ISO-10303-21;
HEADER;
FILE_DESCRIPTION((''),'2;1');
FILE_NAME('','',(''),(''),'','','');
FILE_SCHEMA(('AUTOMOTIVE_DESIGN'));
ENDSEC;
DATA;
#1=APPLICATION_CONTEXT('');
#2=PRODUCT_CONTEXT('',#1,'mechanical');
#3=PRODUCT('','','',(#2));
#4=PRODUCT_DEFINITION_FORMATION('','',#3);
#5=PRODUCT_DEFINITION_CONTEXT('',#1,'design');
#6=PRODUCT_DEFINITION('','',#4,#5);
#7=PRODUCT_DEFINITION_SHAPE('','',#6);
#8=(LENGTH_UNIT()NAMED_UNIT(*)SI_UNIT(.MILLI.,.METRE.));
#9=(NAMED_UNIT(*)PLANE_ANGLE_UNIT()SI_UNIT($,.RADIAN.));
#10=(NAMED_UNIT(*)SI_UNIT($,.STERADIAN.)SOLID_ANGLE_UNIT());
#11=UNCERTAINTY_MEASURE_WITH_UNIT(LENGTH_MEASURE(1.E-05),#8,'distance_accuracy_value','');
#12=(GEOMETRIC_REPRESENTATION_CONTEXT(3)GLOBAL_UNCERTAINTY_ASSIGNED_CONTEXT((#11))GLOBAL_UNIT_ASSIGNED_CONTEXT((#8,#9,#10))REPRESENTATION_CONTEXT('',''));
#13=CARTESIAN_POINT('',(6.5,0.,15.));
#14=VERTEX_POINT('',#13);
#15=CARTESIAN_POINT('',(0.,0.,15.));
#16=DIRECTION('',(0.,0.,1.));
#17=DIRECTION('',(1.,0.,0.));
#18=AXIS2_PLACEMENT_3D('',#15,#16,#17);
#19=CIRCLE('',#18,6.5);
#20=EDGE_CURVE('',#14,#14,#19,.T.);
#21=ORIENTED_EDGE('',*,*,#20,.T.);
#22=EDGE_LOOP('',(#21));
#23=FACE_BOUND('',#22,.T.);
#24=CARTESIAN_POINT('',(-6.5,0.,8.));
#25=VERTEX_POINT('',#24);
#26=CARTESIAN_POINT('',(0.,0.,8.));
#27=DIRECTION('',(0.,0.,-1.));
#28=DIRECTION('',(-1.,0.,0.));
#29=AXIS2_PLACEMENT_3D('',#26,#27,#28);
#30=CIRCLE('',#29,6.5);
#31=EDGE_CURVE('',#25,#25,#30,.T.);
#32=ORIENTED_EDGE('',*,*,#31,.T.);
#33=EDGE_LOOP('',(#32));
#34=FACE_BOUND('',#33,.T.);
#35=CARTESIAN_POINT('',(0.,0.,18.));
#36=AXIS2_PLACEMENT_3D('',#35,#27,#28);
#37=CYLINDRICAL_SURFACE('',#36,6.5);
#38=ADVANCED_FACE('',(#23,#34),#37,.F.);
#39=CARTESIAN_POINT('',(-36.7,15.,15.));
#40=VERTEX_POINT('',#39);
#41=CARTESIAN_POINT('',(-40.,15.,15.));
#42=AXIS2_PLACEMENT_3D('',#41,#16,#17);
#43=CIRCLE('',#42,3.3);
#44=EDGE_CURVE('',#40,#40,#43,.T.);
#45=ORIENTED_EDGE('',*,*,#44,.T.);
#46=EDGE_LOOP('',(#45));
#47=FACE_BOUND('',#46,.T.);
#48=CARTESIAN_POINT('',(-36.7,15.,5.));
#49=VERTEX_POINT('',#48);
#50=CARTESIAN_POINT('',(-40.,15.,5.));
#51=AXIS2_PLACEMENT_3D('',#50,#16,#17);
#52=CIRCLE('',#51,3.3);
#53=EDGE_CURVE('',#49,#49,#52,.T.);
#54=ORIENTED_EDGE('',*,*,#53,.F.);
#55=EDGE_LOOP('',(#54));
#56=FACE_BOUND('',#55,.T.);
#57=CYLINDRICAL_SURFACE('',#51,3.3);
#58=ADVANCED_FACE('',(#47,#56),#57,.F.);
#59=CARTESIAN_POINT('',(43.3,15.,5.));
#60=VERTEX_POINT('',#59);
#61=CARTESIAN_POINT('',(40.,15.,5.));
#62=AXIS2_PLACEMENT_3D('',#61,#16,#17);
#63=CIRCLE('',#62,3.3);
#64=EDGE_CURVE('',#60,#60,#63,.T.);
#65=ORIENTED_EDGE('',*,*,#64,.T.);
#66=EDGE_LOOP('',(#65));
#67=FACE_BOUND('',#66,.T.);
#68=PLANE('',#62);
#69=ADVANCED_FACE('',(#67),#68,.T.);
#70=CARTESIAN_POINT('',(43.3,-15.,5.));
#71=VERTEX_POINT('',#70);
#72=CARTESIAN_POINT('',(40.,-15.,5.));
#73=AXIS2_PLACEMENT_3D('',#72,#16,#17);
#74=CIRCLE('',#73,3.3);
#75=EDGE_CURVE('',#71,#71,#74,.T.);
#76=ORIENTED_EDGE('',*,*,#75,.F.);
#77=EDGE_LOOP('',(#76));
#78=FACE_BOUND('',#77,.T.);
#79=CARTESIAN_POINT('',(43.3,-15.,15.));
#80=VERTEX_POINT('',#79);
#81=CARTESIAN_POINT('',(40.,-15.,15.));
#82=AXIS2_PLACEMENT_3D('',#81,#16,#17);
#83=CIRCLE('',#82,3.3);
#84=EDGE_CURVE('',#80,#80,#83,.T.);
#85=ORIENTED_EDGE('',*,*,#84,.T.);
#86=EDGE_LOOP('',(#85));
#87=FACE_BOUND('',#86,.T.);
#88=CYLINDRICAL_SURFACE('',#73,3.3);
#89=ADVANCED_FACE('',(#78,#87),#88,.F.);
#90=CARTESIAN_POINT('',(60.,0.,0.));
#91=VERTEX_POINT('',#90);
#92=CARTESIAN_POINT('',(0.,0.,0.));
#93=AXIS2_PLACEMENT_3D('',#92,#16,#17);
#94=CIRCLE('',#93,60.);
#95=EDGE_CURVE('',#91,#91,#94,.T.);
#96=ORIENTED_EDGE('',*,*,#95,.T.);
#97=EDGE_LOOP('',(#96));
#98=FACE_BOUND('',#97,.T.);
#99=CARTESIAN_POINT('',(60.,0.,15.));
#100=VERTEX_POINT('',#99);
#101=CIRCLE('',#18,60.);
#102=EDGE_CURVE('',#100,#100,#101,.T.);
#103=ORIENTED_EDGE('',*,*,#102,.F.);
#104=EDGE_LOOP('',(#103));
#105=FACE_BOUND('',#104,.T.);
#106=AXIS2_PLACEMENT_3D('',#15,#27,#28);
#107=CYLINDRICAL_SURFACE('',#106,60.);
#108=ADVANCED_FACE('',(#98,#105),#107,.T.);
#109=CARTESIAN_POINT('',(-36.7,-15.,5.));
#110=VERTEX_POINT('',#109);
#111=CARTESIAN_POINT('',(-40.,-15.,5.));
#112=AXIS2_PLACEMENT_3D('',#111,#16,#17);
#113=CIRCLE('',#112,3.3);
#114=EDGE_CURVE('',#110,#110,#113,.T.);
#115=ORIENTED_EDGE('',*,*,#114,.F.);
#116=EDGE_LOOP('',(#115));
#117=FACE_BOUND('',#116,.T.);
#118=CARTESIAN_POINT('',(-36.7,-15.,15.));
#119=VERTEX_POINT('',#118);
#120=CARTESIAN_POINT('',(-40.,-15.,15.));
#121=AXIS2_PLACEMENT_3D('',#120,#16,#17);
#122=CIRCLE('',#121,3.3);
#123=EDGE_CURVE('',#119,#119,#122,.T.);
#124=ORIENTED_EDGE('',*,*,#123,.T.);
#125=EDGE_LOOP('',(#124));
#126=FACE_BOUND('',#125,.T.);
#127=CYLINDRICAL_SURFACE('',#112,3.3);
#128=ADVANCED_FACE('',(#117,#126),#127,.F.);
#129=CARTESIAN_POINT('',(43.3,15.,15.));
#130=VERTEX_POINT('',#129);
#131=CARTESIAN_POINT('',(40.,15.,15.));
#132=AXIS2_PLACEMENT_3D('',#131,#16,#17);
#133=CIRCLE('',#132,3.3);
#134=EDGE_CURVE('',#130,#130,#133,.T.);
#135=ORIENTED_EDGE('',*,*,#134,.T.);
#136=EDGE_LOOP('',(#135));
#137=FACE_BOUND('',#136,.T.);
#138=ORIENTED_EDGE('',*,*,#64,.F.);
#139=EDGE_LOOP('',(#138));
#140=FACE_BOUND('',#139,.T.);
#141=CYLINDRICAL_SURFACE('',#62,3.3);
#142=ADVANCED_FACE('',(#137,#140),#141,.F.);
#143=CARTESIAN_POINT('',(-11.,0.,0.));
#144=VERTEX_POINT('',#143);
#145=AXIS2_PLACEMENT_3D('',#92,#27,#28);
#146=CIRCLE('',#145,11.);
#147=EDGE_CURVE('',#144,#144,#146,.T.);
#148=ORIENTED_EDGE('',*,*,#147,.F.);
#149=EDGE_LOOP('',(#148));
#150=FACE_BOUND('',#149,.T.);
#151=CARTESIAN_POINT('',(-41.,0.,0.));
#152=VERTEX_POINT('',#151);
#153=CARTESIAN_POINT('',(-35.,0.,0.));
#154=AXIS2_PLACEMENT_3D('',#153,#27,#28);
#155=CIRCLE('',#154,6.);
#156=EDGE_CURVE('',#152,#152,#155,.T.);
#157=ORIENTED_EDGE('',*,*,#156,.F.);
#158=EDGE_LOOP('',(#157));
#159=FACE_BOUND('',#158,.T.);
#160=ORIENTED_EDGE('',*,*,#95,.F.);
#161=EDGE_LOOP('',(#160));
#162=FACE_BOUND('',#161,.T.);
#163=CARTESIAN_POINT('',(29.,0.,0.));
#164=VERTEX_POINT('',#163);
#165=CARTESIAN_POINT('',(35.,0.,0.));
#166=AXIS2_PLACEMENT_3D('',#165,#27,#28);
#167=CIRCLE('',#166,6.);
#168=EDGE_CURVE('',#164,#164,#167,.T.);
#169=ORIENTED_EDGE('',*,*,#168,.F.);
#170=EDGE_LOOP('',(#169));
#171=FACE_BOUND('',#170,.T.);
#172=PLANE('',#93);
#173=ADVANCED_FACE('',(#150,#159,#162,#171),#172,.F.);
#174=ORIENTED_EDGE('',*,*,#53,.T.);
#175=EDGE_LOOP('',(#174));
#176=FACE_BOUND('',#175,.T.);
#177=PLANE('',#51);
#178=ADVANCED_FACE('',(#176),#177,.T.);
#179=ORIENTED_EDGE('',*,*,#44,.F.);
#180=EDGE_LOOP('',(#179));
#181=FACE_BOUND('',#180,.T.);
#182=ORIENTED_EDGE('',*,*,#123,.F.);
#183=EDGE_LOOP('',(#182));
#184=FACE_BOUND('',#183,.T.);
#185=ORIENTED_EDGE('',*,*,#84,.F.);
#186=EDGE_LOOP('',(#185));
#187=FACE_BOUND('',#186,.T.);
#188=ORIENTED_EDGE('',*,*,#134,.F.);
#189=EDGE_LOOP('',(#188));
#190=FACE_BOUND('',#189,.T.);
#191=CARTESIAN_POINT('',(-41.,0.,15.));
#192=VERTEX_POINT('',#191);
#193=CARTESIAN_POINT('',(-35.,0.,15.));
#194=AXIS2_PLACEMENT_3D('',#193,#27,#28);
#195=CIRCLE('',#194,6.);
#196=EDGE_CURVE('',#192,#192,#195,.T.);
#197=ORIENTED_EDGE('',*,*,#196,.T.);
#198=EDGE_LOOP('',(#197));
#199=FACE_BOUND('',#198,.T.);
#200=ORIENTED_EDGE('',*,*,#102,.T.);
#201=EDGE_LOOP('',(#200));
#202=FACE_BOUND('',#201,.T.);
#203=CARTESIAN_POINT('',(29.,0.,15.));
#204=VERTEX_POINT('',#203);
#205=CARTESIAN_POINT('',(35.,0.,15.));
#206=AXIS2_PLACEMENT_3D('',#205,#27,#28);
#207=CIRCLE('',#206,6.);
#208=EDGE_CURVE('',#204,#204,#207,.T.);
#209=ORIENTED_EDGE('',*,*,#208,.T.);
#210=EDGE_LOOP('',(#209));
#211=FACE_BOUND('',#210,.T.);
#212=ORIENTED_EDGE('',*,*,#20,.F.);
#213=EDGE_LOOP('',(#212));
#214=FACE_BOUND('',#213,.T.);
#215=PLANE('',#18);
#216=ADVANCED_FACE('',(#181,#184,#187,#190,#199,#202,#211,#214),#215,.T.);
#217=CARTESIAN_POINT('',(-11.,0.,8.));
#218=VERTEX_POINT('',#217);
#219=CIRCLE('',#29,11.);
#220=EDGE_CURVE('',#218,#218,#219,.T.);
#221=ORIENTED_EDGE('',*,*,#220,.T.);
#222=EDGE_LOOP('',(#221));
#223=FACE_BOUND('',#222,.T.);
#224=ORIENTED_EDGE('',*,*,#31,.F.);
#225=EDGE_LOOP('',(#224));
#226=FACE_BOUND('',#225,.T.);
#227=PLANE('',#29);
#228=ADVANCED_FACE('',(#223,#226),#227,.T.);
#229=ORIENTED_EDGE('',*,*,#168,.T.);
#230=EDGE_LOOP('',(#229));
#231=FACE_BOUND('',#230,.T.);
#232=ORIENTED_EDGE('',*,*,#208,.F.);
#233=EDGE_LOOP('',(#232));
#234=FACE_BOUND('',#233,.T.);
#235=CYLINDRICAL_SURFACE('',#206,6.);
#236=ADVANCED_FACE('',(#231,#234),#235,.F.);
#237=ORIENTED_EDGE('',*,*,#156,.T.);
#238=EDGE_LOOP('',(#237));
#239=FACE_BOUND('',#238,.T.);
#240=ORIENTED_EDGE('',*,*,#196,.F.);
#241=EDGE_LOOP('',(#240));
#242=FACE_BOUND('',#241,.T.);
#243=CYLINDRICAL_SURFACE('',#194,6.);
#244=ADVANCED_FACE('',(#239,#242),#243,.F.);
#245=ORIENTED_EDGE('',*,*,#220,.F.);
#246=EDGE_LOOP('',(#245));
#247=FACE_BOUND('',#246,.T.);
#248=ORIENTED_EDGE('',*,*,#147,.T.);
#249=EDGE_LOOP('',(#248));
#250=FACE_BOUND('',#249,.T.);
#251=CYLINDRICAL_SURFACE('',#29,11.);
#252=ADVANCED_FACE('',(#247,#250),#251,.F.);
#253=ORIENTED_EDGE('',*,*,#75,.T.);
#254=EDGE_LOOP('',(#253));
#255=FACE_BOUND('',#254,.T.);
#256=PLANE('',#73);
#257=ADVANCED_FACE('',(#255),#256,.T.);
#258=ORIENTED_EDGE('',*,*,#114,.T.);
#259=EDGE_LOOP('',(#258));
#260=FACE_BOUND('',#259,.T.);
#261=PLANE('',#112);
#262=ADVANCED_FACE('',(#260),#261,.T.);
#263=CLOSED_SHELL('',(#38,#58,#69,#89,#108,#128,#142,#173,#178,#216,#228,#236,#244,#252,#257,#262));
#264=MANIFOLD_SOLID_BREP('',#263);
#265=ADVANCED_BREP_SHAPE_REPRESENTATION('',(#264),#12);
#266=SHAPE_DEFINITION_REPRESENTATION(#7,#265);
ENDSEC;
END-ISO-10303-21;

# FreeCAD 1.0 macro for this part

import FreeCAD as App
import Part
import Sketcher
Q = App.Units.Quantity

doc = App.newDocument("Part")
params = doc.addObject("Spreadsheet::Sheet", "Params")
for row, (alias, value) in enumerate([
    ("sketch1_diameter", "120 mm"),
    ("pad1_length", "15 mm"),
    ("sketch2_diameter", "12 mm"),
    ("sketch3_diameter", "22 mm"),
    ("pocket2_length", "8 mm"),
    ("sketch4_diameter", "13 mm"),
    ("pocket3_length", "10 mm"),
    ("sketch5_diameter", "6.6 mm"),
    ("pocket4_length", "10 mm"),
], start=1):
    params.set(f"A{row}", alias)
    params.set(f"B{row}", "=" + value)
    params.setAlias(f"B{row}", alias)

body = doc.addObject("PartDesign::Body", "Body")

sketch1 = doc.addObject("Sketcher::SketchObject", "Sketch")
body.addObject(sketch1)
sketch1.AttachmentSupport = (doc.XY_Plane, [""])
sketch1.MapMode = "FlatFace"
sketch1.addGeometry(Part.Circle(App.Vector(0, 0, 0), App.Vector(0, 0, 1), 60), False)
sketch1.addConstraint([
    Sketcher.Constraint("Coincident", 0, 3, -1, 1),
    Sketcher.Constraint("Diameter", 0, Q("120 mm")),
])
sketch1.setExpression("Constraints[1]", "Params.sketch1_diameter")
pad1 = doc.addObject("PartDesign::Pad", "Pad")
body.addObject(pad1)
pad1.Profile = sketch1
pad1.setExpression("Length", "Params.pad1_length")

sketch2 = doc.addObject("Sketcher::SketchObject", "Sketch001")
body.addObject(sketch2)
sketch2.AttachmentSupport = (doc.XY_Plane, [""])
sketch2.MapMode = "FlatFace"
sketch2.addGeometry([
    Part.Circle(App.Vector(35, 0, 0), App.Vector(0, 0, 1), 6),
    Part.Circle(App.Vector(-35, 0, 0), App.Vector(0, 0, 1), 6),
], False)
sketch2.addConstraint([
    Sketcher.Constraint("Equal", 0, 1),
    Sketcher.Constraint("Symmetric", 0, 3, 1, 3, -1, 1),
    Sketcher.Constraint("PointOnObject", 0, 3, -1),
    Sketcher.Constraint("Diameter", 0, Q("12 mm")),
    Sketcher.Constraint("DistanceX", -1, 1, 0, 3, Q("35 mm")),
])
sketch2.setExpression("Constraints[3]", "Params.sketch2_diameter")
pocket1 = doc.addObject("PartDesign::Pocket", "Pocket")
body.addObject(pocket1)
pocket1.Profile = sketch2
pocket1.Type = "ThroughAll"
pocket1.Reversed = True

sketch3 = doc.addObject("Sketcher::SketchObject", "Sketch002")
body.addObject(sketch3)
sketch3.AttachmentSupport = (doc.XY_Plane, [""])
sketch3.MapMode = "FlatFace"
sketch3.addGeometry(Part.Circle(App.Vector(0, 0, 0), App.Vector(0, 0, 1), 11), False)
sketch3.addConstraint([
    Sketcher.Constraint("Coincident", 0, 3, -1, 1),
    Sketcher.Constraint("Diameter", 0, Q("22 mm")),
])
sketch3.setExpression("Constraints[1]", "Params.sketch3_diameter")
pocket2 = doc.addObject("PartDesign::Pocket", "Pocket001")
body.addObject(pocket2)
pocket2.Profile = sketch3
pocket2.setExpression("Length", "Params.pocket2_length")
pocket2.Reversed = True

sketch4 = doc.addObject("Sketcher::SketchObject", "Sketch003")
body.addObject(sketch4)
sketch4.AttachmentSupport = (doc.XY_Plane, [""])
sketch4.MapMode = "FlatFace"
sketch4.AttachmentOffset = App.Placement(App.Vector(0, 0, 8), App.Rotation())
sketch4.addGeometry(Part.Circle(App.Vector(0, 0, 0), App.Vector(0, 0, 1), 6), False)
sketch4.addConstraint([
    Sketcher.Constraint("Coincident", 0, 3, -1, 1),
    Sketcher.Constraint("Diameter", 0, Q("13 mm")),
])
sketch4.setExpression("Constraints[1]", "Params.sketch4_diameter")
pocket3 = doc.addObject("PartDesign::Pocket", "Pocket002")
body.addObject(pocket3)
pocket3.Profile = sketch4
pocket3.setExpression("Length", "Params.pocket3_length")
pocket3.Reversed = True

sketch5 = doc.addObject("Sketcher::SketchObject", "Sketch004")
body.addObject(sketch5)
sketch5.AttachmentSupport = (doc.XY_Plane, [""])
sketch5.MapMode = "FlatFace"
sketch5.AttachmentOffset = App.Placement(App.Vector(0, 0, 15), App.Rotation())
sketch5.addGeometry([
    Part.Circle(App.Vector(40, 15, 0), App.Vector(0, 0, 1), 3.3),
    Part.Circle(App.Vector(40, -15, 0), App.Vector(0, 0, 1), 3.3),
    Part.Circle(App.Vector(-40, -15, 0), App.Vector(0, 0, 1), 3.3),
    Part.Circle(App.Vector(-40, 15, 0), App.Vector(0, 0, 1), 3.3),
], False)
sketch5.addConstraint([
    Sketcher.Constraint("Equal", 0, 1),
    Sketcher.Constraint("Equal", 1, 2),
    Sketcher.Constraint("Equal", 2, 3),
    Sketcher.Constraint("Symmetric", 0, 3, 2, 3, -1, 1),
    Sketcher.Constraint("Symmetric", 1, 3, 3, 3, -1, 1),
    Sketcher.Constraint("Symmetric", 1, 3, 2, 3, -2),
    Sketcher.Constraint("Diameter", 0, Q("6.6 mm")),
    Sketcher.Constraint("DistanceX", -1, 1, 0, 3, Q("40 mm")),
    Sketcher.Constraint("DistanceY", -1, 1, 0, 3, Q("15 mm")),
])
sketch5.setExpression("Constraints[6]", "Params.sketch5_diameter")
pocket4 = doc.addObject("PartDesign::Pocket", "Pocket003")
body.addObject(pocket4)
pocket4.Profile = sketch5
pocket4.setExpression("Length", "Params.pocket4_length")

doc.recompute()
